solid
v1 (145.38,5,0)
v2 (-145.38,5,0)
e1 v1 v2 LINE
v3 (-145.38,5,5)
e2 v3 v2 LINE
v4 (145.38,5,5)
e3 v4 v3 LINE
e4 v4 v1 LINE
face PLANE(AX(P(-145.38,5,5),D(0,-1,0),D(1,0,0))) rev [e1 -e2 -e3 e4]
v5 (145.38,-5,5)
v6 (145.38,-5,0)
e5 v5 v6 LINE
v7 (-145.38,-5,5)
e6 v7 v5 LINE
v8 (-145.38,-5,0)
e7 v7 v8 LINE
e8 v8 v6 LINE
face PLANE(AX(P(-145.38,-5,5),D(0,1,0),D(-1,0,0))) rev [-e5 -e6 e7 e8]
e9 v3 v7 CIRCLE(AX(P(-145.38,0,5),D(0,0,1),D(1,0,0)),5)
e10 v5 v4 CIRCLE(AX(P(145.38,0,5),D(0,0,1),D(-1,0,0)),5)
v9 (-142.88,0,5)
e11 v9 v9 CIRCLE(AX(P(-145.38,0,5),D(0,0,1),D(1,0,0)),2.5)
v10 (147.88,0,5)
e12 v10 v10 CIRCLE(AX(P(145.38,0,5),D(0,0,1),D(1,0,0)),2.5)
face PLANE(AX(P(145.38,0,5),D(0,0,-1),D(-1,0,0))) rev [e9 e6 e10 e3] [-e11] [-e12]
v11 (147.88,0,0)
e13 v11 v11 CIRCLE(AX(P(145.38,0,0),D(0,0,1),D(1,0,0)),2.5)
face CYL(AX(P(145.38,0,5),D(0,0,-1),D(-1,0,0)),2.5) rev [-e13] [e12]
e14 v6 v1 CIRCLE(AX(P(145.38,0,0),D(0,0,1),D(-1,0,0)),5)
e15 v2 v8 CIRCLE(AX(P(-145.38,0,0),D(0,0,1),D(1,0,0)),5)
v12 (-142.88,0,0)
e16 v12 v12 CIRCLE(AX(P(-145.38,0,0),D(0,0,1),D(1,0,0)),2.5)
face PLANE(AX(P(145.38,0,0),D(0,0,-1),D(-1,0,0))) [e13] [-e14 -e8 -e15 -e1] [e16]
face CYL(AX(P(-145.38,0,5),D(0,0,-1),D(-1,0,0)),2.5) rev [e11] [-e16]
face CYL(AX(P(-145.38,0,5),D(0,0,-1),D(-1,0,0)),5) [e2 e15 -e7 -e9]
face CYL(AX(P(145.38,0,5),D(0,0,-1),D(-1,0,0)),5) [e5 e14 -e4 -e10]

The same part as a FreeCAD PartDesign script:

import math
import FreeCAD as App
import Part
import Sketcher
from FreeCAD import Vector

doc = App.newDocument("Part")
body = doc.addObject("PartDesign::Body", "Body")

# Sketch on XY plane
sketch1 = body.newObject("Sketcher::SketchObject", "Sketch")
sketch1.AttachmentSupport = (doc.getObject("XY_Plane"), [""])
sketch1.MapMode = "FlatFace"
sketch1.addGeometry(Part.LineSegment(Vector(145.4, 5, 0), Vector(-145.4, 5, 0)), False)
sketch1.addGeometry(Part.ArcOfCircle(Part.Circle(Vector(-145.4, 0, 0), Vector(0, 0, 1), 5), math.radians(90), math.radians(270)), False)
sketch1.addGeometry(Part.LineSegment(Vector(-145.4, -5, 0), Vector(145.4, -5, 0)), False)
sketch1.addGeometry(Part.ArcOfCircle(Part.Circle(Vector(145.4, 0, 0), Vector(0, 0, 1), 5), math.radians(-90), math.radians(90)), False)
sketch1.addGeometry(Part.Circle(Vector(145.4, 0, 0), Vector(0, 0, 1), 2.5), False)
sketch1.addGeometry(Part.Circle(Vector(-145.4, 0, 0), Vector(0, 0, 1), 2.5), False)
sketch1.addConstraint(Sketcher.Constraint("Tangent", 0, 2, 1, 1))
sketch1.addConstraint(Sketcher.Constraint("Tangent", 1, 2, 2, 1))
sketch1.addConstraint(Sketcher.Constraint("Tangent", 2, 2, 3, 1))
sketch1.addConstraint(Sketcher.Constraint("Tangent", 3, 2, 0, 1))
sketch1.addConstraint(Sketcher.Constraint("Horizontal", 0))
sketch1.addConstraint(Sketcher.Constraint("Horizontal", 2))
sketch1.addConstraint(Sketcher.Constraint("Coincident", 4, 3, 3, 3))
sketch1.addConstraint(Sketcher.Constraint("Coincident", 5, 3, 1, 3))
sketch1.addConstraint(Sketcher.Constraint("Equal", 4, 5))
sketch1.addConstraint(Sketcher.Constraint("Symmetric", 1, 3, 3, 3, -1, 1))
sketch1.addConstraint(Sketcher.Constraint("Diameter", 4, 5.0))
sketch1.addConstraint(Sketcher.Constraint("Radius", 1, 5.0))
sketch1.addConstraint(Sketcher.Constraint("DistanceX", 0, 2, 0, 1, 290.76))
pad1 = body.newObject("PartDesign::Pad", "Pad")
pad1.Profile = sketch1
pad1.Length = 5

doc.recompute()
